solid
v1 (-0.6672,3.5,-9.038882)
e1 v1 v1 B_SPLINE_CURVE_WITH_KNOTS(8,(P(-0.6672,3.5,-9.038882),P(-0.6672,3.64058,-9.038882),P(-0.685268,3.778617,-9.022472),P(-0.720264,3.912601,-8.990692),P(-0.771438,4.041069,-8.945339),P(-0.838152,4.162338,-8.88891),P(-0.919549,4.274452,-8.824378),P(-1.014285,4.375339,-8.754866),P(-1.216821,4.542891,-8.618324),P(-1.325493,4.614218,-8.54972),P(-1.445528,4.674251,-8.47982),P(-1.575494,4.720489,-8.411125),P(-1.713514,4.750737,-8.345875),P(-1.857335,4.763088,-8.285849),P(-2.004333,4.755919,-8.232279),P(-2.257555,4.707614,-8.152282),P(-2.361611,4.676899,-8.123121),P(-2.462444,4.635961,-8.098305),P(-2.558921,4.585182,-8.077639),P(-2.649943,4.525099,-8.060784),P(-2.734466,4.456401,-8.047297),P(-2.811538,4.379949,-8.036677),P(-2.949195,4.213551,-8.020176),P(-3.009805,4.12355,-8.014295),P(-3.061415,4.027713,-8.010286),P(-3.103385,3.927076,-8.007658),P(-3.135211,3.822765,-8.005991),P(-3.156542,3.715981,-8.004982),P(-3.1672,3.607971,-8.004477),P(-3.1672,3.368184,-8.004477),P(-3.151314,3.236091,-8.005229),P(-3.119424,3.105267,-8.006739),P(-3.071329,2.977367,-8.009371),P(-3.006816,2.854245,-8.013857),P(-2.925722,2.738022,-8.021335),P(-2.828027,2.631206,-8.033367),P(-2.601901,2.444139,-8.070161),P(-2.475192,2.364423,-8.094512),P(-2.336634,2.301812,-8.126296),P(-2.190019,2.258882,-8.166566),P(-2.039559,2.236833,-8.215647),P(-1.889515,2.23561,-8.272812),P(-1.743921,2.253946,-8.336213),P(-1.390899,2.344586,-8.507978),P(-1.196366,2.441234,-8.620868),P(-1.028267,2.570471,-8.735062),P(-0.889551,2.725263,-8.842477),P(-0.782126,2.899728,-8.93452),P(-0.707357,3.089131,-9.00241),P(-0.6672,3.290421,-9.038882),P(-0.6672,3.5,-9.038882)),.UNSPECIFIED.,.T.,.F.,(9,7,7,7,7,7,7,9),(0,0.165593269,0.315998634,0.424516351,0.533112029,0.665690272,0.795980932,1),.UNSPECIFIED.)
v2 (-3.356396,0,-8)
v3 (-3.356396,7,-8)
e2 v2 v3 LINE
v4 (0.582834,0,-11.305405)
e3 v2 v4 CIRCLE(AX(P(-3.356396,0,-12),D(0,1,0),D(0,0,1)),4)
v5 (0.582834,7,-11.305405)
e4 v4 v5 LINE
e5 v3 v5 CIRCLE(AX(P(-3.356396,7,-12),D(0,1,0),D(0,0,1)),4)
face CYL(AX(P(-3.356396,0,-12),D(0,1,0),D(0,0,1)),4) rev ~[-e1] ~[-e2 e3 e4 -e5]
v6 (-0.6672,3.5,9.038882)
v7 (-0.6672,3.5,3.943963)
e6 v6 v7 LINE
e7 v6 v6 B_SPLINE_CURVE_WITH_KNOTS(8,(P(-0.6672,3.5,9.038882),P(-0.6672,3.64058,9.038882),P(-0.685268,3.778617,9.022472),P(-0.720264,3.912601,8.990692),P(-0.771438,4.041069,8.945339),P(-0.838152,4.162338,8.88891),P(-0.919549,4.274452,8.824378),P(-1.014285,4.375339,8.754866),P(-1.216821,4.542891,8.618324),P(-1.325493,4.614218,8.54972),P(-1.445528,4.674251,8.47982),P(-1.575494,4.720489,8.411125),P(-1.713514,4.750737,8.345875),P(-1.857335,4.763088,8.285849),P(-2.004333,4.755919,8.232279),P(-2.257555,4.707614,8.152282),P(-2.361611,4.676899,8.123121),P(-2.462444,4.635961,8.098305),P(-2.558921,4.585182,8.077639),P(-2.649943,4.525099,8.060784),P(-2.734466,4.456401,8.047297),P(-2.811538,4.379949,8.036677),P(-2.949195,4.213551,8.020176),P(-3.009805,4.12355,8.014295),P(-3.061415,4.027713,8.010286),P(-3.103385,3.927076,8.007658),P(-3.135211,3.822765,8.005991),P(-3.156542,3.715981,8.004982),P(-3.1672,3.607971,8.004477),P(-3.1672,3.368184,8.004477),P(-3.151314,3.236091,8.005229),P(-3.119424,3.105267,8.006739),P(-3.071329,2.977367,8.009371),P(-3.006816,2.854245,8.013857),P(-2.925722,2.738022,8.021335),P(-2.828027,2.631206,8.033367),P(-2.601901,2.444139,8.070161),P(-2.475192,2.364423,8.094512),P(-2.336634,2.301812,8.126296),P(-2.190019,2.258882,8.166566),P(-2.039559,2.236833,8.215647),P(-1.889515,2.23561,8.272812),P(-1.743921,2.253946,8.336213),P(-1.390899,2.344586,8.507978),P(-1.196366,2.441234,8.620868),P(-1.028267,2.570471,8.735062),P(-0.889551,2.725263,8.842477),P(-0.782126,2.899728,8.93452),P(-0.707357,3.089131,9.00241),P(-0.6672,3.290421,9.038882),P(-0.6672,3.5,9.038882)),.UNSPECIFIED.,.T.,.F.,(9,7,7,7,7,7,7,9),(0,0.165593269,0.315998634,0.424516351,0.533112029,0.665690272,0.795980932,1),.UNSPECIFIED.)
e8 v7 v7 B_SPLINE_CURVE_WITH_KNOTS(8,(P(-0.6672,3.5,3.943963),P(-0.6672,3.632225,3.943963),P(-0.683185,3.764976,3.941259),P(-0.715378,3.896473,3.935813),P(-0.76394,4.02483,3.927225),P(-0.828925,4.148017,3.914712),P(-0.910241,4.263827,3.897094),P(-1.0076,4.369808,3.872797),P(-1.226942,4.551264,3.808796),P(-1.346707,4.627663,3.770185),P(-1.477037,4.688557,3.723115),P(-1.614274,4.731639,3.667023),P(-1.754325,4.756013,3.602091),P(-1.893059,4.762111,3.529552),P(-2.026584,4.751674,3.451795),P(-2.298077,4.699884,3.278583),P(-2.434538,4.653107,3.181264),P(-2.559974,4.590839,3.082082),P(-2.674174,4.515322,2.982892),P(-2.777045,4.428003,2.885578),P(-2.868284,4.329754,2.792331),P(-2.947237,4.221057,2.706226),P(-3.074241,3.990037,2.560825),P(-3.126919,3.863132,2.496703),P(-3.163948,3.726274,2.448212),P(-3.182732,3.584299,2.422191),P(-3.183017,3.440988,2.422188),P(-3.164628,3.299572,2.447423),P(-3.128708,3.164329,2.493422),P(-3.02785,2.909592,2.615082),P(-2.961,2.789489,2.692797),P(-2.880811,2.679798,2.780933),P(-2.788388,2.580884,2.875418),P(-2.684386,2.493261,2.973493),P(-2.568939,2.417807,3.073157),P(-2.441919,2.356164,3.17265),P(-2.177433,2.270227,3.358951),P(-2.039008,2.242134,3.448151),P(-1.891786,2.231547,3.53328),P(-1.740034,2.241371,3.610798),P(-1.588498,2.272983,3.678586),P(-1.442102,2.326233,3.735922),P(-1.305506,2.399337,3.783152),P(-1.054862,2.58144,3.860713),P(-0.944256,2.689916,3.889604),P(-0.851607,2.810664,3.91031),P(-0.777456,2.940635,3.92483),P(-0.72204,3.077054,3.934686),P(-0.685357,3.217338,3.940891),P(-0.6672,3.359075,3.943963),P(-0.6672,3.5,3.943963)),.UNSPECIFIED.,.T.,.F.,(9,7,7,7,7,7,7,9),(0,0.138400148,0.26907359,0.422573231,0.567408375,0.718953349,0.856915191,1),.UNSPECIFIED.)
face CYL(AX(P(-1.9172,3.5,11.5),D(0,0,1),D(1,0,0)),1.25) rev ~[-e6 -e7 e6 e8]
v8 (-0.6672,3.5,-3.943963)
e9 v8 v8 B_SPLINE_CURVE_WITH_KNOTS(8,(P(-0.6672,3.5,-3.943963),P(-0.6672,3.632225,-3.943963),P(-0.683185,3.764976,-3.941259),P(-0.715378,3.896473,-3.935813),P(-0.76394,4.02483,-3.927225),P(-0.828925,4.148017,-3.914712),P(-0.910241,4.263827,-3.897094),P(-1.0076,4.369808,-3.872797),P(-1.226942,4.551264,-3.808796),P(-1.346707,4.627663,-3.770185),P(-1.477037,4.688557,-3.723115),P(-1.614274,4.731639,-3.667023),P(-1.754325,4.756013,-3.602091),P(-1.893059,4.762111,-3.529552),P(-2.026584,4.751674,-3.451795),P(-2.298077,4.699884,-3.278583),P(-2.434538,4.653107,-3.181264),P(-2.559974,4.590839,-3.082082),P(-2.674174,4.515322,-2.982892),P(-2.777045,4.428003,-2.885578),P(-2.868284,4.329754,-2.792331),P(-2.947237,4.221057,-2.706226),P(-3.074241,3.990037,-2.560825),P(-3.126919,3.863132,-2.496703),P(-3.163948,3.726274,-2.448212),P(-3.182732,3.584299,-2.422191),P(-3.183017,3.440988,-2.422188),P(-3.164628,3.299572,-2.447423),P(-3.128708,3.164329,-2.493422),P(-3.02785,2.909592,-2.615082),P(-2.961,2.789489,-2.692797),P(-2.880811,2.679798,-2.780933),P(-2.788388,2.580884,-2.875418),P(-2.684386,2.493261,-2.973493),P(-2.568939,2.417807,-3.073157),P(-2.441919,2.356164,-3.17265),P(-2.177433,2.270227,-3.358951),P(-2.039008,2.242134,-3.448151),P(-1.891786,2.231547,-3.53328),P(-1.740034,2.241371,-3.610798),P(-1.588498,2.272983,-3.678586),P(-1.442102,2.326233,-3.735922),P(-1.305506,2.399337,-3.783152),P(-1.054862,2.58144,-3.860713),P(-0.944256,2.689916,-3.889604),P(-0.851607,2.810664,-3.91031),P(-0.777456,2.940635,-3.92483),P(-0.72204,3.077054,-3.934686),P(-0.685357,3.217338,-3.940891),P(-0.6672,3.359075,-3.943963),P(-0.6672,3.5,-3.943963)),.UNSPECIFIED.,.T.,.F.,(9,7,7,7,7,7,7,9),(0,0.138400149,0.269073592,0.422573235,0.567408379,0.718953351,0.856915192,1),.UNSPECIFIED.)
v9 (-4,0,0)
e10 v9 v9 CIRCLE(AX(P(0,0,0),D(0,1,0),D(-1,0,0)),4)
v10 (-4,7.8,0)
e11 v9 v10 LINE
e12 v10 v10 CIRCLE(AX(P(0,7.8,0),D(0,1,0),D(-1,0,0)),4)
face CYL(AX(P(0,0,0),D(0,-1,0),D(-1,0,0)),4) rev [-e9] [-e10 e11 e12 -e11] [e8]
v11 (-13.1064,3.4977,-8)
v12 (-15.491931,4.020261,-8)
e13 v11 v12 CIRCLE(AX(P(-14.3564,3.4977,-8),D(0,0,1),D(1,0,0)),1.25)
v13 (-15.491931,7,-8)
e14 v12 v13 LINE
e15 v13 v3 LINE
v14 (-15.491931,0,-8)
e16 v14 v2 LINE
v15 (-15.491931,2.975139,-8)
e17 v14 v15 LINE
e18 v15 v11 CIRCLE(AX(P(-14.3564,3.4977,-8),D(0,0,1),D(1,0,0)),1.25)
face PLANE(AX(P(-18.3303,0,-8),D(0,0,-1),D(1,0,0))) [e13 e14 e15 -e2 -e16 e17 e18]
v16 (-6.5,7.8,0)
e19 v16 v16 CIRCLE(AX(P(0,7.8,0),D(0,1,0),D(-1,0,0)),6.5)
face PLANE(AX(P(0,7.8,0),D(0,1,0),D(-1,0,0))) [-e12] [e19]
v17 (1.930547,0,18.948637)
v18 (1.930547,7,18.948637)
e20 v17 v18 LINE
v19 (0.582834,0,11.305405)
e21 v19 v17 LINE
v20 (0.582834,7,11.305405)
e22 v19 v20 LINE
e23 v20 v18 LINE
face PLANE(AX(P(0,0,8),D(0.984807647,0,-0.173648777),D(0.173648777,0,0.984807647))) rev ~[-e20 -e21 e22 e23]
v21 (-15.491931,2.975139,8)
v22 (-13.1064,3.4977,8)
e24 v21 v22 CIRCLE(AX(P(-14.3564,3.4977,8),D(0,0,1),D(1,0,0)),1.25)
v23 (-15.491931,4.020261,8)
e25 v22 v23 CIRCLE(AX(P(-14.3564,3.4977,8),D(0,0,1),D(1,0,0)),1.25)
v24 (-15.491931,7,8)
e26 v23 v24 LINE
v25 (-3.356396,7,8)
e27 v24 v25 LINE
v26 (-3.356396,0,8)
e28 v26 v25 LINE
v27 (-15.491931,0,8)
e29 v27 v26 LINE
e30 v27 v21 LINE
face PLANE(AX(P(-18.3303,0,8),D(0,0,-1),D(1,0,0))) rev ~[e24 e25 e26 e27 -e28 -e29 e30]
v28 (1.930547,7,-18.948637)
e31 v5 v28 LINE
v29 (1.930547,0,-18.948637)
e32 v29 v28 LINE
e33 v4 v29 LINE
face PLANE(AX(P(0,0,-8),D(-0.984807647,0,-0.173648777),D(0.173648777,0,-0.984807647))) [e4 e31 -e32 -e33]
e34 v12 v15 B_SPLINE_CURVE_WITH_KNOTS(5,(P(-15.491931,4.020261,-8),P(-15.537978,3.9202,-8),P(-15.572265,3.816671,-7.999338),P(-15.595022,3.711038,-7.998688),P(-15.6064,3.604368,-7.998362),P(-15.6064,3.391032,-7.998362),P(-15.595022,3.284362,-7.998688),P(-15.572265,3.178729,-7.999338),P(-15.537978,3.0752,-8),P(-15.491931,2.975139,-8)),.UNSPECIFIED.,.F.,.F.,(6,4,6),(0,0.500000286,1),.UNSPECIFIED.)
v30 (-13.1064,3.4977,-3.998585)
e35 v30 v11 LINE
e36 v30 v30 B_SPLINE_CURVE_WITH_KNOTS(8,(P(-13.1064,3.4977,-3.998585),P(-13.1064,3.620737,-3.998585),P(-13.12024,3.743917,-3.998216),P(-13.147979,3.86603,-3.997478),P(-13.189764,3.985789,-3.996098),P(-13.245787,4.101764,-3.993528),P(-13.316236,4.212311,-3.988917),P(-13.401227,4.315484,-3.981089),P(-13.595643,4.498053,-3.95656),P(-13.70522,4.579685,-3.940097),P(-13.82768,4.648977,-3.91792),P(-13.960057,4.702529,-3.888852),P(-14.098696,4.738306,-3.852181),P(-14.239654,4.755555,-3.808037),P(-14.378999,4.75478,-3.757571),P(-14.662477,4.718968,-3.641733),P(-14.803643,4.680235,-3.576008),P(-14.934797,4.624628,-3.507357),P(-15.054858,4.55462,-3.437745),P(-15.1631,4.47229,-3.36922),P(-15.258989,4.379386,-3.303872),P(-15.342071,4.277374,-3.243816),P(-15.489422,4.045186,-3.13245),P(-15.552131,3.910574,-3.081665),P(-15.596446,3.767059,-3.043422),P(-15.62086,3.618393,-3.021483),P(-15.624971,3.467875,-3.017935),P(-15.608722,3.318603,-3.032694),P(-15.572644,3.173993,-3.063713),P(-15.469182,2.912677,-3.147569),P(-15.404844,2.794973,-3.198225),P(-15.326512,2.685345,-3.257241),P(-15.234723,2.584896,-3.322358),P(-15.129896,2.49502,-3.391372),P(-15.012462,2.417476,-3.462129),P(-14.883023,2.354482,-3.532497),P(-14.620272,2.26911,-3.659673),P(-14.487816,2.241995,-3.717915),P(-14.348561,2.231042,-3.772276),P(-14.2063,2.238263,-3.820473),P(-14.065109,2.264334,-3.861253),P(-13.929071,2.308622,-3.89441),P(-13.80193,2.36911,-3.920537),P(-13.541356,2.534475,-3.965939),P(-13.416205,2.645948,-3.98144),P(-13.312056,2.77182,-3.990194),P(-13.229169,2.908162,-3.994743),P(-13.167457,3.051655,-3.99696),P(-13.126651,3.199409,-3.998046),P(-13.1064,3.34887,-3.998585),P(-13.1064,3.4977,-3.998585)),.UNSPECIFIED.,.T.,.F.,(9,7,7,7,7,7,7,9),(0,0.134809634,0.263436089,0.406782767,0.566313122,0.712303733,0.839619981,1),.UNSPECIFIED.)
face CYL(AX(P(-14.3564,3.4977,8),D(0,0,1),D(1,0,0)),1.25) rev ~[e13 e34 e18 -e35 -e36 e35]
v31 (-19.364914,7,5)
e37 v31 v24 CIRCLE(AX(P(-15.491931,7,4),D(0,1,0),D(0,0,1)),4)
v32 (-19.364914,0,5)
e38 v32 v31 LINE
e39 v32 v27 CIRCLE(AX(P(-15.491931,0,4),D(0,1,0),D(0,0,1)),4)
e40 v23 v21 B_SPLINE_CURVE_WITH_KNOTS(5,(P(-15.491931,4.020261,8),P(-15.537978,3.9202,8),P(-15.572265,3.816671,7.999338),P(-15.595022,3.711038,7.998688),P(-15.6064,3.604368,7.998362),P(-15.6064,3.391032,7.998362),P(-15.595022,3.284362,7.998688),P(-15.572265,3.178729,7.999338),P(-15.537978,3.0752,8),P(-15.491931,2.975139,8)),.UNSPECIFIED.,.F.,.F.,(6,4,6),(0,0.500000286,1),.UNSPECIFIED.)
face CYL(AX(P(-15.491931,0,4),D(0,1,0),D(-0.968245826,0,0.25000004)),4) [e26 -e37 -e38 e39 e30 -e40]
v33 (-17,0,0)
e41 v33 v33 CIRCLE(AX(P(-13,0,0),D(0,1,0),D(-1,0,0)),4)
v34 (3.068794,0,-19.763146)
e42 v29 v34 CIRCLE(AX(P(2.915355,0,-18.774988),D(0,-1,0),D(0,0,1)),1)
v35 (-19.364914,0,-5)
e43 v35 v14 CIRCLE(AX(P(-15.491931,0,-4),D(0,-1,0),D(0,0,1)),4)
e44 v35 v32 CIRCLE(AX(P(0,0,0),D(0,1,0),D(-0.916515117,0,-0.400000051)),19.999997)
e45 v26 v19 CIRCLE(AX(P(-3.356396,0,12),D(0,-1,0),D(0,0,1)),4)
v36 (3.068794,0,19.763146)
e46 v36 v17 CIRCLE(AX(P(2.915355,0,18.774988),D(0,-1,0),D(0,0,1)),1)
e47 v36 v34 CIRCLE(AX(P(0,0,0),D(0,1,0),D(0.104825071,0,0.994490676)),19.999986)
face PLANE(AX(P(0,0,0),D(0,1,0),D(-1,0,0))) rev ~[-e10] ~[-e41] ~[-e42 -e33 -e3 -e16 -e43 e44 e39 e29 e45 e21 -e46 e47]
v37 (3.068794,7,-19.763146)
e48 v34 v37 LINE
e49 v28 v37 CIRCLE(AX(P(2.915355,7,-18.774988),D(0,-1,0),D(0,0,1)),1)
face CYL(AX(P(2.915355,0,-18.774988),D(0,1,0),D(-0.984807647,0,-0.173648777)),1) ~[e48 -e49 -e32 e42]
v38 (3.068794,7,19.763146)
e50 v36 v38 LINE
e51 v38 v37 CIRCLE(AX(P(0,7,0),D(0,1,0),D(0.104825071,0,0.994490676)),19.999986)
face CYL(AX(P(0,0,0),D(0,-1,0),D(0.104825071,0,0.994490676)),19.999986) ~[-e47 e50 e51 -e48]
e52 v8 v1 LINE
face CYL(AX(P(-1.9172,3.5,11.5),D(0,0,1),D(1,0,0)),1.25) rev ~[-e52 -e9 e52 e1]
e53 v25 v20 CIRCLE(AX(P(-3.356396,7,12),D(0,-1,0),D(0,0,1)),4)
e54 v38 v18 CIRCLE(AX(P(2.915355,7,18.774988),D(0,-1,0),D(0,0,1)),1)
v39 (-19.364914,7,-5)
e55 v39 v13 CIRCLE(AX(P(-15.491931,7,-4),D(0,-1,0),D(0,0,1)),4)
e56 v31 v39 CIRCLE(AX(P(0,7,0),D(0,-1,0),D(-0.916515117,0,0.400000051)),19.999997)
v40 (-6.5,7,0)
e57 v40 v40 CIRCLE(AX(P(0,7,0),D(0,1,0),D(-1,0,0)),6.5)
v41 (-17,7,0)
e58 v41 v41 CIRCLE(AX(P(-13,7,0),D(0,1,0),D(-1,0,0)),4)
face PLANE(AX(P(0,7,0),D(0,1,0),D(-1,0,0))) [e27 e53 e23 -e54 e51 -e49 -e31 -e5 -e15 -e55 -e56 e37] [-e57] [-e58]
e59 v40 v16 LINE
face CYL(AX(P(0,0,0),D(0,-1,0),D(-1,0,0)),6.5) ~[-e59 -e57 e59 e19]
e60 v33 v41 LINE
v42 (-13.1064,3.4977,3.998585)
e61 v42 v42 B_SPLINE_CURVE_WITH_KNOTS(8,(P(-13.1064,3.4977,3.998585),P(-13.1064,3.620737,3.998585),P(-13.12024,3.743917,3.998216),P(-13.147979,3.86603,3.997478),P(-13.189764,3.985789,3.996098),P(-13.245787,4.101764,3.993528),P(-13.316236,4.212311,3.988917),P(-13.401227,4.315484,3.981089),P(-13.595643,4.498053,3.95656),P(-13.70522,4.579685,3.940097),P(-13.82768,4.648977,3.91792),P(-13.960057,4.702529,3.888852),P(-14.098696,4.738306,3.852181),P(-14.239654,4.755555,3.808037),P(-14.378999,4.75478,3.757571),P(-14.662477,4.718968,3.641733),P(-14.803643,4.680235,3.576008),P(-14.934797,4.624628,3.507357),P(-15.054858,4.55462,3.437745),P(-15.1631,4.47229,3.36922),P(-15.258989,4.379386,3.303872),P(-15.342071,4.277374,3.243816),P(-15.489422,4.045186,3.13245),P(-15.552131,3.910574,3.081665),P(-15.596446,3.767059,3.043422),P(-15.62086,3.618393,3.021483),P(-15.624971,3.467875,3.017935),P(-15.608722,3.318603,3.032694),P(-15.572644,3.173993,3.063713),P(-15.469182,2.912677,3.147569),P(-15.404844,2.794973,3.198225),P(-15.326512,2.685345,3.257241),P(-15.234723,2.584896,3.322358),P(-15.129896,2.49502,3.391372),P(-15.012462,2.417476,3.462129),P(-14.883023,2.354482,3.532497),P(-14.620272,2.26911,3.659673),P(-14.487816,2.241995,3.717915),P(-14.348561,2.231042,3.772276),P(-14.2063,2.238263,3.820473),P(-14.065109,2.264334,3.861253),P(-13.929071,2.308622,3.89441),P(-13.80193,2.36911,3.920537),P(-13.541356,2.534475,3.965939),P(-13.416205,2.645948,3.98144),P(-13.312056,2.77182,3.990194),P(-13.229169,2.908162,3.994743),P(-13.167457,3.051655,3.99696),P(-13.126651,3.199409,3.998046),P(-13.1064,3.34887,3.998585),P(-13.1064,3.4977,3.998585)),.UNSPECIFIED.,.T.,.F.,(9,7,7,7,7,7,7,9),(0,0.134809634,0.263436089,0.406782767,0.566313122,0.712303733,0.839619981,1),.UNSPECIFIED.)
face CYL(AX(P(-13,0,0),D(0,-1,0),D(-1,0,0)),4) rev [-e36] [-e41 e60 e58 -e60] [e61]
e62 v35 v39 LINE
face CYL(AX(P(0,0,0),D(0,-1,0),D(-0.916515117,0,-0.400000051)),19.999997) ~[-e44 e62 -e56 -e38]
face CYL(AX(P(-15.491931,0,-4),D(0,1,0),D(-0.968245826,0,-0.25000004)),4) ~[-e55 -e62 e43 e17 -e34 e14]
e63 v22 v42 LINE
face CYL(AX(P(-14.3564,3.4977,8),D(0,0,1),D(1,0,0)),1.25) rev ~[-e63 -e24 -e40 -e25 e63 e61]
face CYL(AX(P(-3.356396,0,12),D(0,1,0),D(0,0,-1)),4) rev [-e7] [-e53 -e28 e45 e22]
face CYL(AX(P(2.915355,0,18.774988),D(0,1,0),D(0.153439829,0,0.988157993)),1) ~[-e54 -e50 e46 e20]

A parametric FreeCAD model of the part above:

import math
import FreeCAD as App
import Part
import Sketcher
Q = App.Units.Quantity


def edges_at(feature, points):
    """Names of the edges that pass closest to the given points."""
    edges = feature.Shape.Edges
    near = lambda p: min(range(len(edges)), key=lambda i: edges[i].distToShape(Part.Vertex(*p))[0])
    return sorted({f"Edge{near(p) + 1}" for p in points})

doc = App.newDocument("Part")
body = doc.addObject("PartDesign::Body", "Body")

# Sketch on XZ plane
sketch1 = doc.addObject("Sketcher::SketchObject", "Sketch")
body.addObject(sketch1)
sketch1.AttachmentSupport = (doc.XZ_Plane, [""])
sketch1.MapMode = "FlatFace"
sketch1.addGeometry([
    Part.ArcOfCircle(Part.Circle(App.Vector(0, 0, 0), App.Vector(0, 0, 1), 20), math.radians(156), math.radians(204)),  # 0
    Part.LineSegment(App.Vector(-18.3, 8, 0), App.Vector(0, 8, 0)),  # 1
    Part.LineSegment(App.Vector(0, 8, 0), App.Vector(2.1, 19.9, 0)),  # 2
    Part.ArcOfCircle(Part.Circle(App.Vector(0, 0, 0), App.Vector(0, 0, 1), 20), math.radians(-84), math.radians(84)),  # 3
    Part.LineSegment(App.Vector(2.1, -19.9, 0), App.Vector(0, -8, 0)),  # 4
    Part.LineSegment(App.Vector(0, -8, 0), App.Vector(-18.3, -8, 0)),  # 5
    Part.Circle(App.Vector(0, 0, 0), App.Vector(0, 0, 1), 6.5),  # 6
    Part.Circle(App.Vector(-13, 0, 0), App.Vector(0, 0, 1), 4),  # 7
], False)
sketch1.addConstraint([
    Sketcher.Constraint("Coincident", 0, 1, 1, 1),
    Sketcher.Constraint("Coincident", 1, 2, 2, 1),
    Sketcher.Constraint("Coincident", 2, 2, 3, 2),
    Sketcher.Constraint("Coincident", 3, 1, 4, 1),
    Sketcher.Constraint("Coincident", 4, 2, 5, 1),
    Sketcher.Constraint("Coincident", 5, 2, 0, 2),
    Sketcher.Constraint("Horizontal", 1),
    Sketcher.Constraint("Horizontal", 5),
    Sketcher.Constraint("Coincident", 0, 3, -1, 1),
    Sketcher.Constraint("Coincident", 3, 3, -1, 1),
    Sketcher.Constraint("Coincident", 6, 3, -1, 1),
    Sketcher.Constraint("Equal", 0, 3),
    Sketcher.Constraint("Symmetric", 1, 2, 4, 2, -1, 1),
    Sketcher.Constraint("PointOnObject", 7, 3, -1),
    Sketcher.Constraint("PointOnObject", 1, 2, -2),
    Sketcher.Constraint("Vertical", 2, 2, 3, 1),
    Sketcher.Constraint("Diameter", 6, 13.0),
    Sketcher.Constraint("Diameter", 7, 8.0),
    Sketcher.Constraint("Radius", 0, 20.0),
    Sketcher.Constraint("Angle", 4, Q("100 deg")),
    Sketcher.Constraint("DistanceX", 7, 3, -1, 1, 13.0),
    Sketcher.Constraint("DistanceY", -1, 1, 0, 1, 8.0),
])
pad1 = doc.addObject("PartDesign::Pad", "Pad")
body.addObject(pad1)
pad1.Profile = sketch1
pad1.Length = 7
pad1.Reversed = True

# Sketch on XZ plane
sketch2 = doc.addObject("Sketcher::SketchObject", "Sketch001")
body.addObject(sketch2)
sketch2.AttachmentSupport = (doc.XZ_Plane, [""])
sketch2.MapMode = "FlatFace"
sketch2.addGeometry([
    Part.Circle(App.Vector(0, 0, 0), App.Vector(0, 0, 1), 6.5),
    Part.Circle(App.Vector(0, 0, 0), App.Vector(0, 0, 1), 4),
], False)
sketch2.addConstraint([
    Sketcher.Constraint("Coincident", 0, 3, -1, 1),
    Sketcher.Constraint("Coincident", 1, 3, -1, 1),
    Sketcher.Constraint("Diameter", 0, 13.0),
    Sketcher.Constraint("Diameter", 1, 8.0),
])
pad2 = doc.addObject("PartDesign::Pad", "Pad001")
body.addObject(pad2)
pad2.Profile = sketch2
pad2.Length = 7.8
pad2.Reversed = True
doc.recompute()

fillet = doc.addObject("PartDesign::Fillet", "Fillet")
body.addObject(fillet)
fillet.Base = (pad2, edges_at(pad2, [(-18.33, 3.5, 8)]))
fillet.Radius = 4
doc.recompute()

fillet2 = doc.addObject("PartDesign::Fillet", "Fillet001")
body.addObject(fillet2)
fillet2.Base = (fillet, edges_at(fillet, [(-18.33, 3.5, -8)]))
fillet2.Radius = 4
doc.recompute()

fillet3 = doc.addObject("PartDesign::Fillet", "Fillet002")
body.addObject(fillet3)
fillet3.Base = (fillet2, edges_at(fillet2, [(0, 3.5, -8), (0, 3.5, 8)]))
fillet3.Radius = 4
doc.recompute()

fillet4 = doc.addObject("PartDesign::Fillet", "Fillet003")
body.addObject(fillet4)
fillet4.Base = (fillet3, edges_at(fillet3, [(2.096, 3.5, 19.89), (2.096, 3.5, -19.89)]))
fillet4.Radius = 1

# Sketch on XY plane
sketch3 = doc.addObject("Sketcher::SketchObject", "Sketch002")
body.addObject(sketch3)
sketch3.AttachmentSupport = (doc.XY_Plane, [""])
sketch3.MapMode = "FlatFace"
sketch3.AttachmentOffset = App.Placement(App.Vector(0, 0, 8), App.Rotation())
sketch3.addGeometry(Part.Circle(App.Vector(-14.4, 3.5, 0), App.Vector(0, 0, 1), 1.2), False)
sketch3.addConstraint([
    Sketcher.Constraint("Diameter", 0, 2.5),
    Sketcher.Constraint("DistanceY", -1, 1, 0, 3, 3.4977),
    Sketcher.Constraint("DistanceX", 0, 3, -1, 1, 14.3564),
])
pocket1 = doc.addObject("PartDesign::Pocket", "Pocket")
body.addObject(pocket1)
pocket1.Profile = sketch3
pocket1.Type = "ThroughAll"

# Sketch on XY plane
sketch4 = doc.addObject("Sketcher::SketchObject", "Sketch003")
body.addObject(sketch4)
sketch4.AttachmentSupport = (doc.XY_Plane, [""])
sketch4.MapMode = "FlatFace"
sketch4.AttachmentOffset = App.Placement(App.Vector(0, 0, 11.5), App.Rotation())
sketch4.addGeometry(Part.Circle(App.Vector(-1.9, 3.5, 0), App.Vector(0, 0, 1), 1.2), False)
sketch4.addConstraint([
    Sketcher.Constraint("Diameter", 0, 2.5),
    Sketcher.Constraint("DistanceY", -1, 1, 0, 3, 3.5),
    Sketcher.Constraint("DistanceX", 0, 3, -1, 1, 1.9172),
])
pocket2 = doc.addObject("PartDesign::Pocket", "Pocket001")
body.addObject(pocket2)
pocket2.Profile = sketch4
pocket2.Type = "ThroughAll"

doc.recompute()
